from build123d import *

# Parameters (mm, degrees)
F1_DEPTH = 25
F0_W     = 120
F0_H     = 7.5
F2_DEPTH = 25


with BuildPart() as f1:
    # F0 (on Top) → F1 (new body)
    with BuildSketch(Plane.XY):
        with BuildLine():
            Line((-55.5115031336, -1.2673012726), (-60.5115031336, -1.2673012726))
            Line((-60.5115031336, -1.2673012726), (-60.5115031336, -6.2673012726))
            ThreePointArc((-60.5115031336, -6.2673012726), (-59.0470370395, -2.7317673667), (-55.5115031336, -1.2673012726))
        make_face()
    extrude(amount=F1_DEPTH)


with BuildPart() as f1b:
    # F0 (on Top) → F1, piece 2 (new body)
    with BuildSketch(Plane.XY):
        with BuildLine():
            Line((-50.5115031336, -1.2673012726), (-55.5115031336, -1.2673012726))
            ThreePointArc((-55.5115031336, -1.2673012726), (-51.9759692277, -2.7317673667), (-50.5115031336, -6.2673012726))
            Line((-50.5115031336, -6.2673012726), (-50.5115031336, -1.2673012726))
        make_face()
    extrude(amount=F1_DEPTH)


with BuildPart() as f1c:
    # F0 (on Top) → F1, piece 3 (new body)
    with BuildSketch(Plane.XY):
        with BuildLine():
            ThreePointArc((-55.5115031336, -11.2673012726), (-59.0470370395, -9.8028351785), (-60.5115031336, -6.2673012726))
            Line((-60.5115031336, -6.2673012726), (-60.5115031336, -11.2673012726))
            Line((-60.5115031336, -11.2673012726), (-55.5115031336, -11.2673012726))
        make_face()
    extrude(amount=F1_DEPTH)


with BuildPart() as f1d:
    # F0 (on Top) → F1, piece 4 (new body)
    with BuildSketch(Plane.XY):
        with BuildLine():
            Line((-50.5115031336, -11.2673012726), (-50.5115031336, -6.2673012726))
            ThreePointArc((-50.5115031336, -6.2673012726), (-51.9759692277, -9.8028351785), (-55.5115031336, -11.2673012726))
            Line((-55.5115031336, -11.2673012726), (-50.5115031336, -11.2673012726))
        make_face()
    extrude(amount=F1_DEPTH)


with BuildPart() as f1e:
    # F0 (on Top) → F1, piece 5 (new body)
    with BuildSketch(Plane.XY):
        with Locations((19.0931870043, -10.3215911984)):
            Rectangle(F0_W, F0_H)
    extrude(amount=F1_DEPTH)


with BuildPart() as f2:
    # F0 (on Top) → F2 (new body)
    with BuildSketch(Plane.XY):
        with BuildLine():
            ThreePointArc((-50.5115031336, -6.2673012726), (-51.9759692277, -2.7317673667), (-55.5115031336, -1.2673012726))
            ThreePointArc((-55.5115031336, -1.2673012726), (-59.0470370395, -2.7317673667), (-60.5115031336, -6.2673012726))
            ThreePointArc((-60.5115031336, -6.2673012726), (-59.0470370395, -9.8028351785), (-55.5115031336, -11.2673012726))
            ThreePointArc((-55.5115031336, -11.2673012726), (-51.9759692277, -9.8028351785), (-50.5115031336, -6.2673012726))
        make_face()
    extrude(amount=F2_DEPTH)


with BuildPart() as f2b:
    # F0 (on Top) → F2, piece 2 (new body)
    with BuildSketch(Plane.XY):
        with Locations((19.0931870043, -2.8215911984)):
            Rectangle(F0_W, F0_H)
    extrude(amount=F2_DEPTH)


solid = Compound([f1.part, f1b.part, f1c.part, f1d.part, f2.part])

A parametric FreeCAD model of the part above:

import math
import FreeCAD as App
import Part
import Sketcher

V = App.Vector
Q = App.Units.Quantity


def add_polygon(sketch, points):
    """Adds a closed chain of lines whose ends are joined by coincident constraints."""
    first, n = sketch.GeometryCount, len(points)
    for a, b in zip(points, points[1:] + points[:1]):
        sketch.addGeometry(Part.LineSegment(App.Vector(*a, 0), App.Vector(*b, 0)), False)
    for i in range(n):
        sketch.addConstraint(Sketcher.Constraint("Coincident", first + i, 2, first + (i + 1) % n, 1))

doc = App.newDocument("Part")
body = doc.addObject("PartDesign::Body", "Body")

# Sketch on XY plane
sketch1 = body.newObject("Sketcher::SketchObject", "Sketch")
sketch1.AttachmentSupport = (doc.getObject("XY_Plane"), [""])
sketch1.MapMode = "FlatFace"
sketch1.addGeometry([
    Part.LineSegment(V(-55.511503, -1.267301, 0), V(-60.511503, -1.267301, 0)),
    Part.LineSegment(V(-60.511503, -1.267301, 0), V(-60.511503, -6.267301, 0)),
    Part.ArcOfCircle(Part.Circle(V(-55.511503, -6.267301, 0), V(0, 0, 1), 5), math.radians(90), math.radians(180)),
], False)
sketch1.addConstraint([
    Sketcher.Constraint("Coincident", 0, 2, 1, 1),
    Sketcher.Constraint("Tangent", 1, 2, 2, 2),
    Sketcher.Constraint("Tangent", 2, 1, 0, 1),
    Sketcher.Constraint("Horizontal", 0),
    Sketcher.Constraint("Vertical", 1),
    Sketcher.Constraint("Radius", 2, Q("5 mm")),
    Sketcher.Constraint("DistanceY", 2, 3, -1, 1, Q("6.267301 mm")),
    Sketcher.Constraint("DistanceX", 2, 3, -1, 1, Q("55.511503 mm")),
])
pad1 = body.newObject("PartDesign::Pad", "Pad")
pad1.Profile = sketch1
pad1.Length = 25
body2 = doc.addObject("PartDesign::Body", "Body001")

# Sketch on XY plane
sketch2 = body2.newObject("Sketcher::SketchObject", "Sketch001")
sketch2.AttachmentSupport = (doc.getObject("XY_Plane001"), [""])
sketch2.MapMode = "FlatFace"
sketch2.addGeometry([
    Part.LineSegment(V(-50.511503, -1.267301, 0), V(-55.511503, -1.267301, 0)),
    Part.ArcOfCircle(Part.Circle(V(-55.511503, -6.267301, 0), V(0, 0, 1), 5), math.radians(0), math.radians(90)),
    Part.LineSegment(V(-50.511503, -6.267301, 0), V(-50.511503, -1.267301, 0)),
], False)
sketch2.addConstraint([
    Sketcher.Constraint("Tangent", 0, 2, 1, 2),
    Sketcher.Constraint("Tangent", 1, 1, 2, 1),
    Sketcher.Constraint("Coincident", 2, 2, 0, 1),
    Sketcher.Constraint("Horizontal", 0),
    Sketcher.Constraint("Vertical", 2),
    Sketcher.Constraint("Radius", 1, Q("5 mm")),
    Sketcher.Constraint("DistanceY", 1, 3, -1, 1, Q("6.267301 mm")),
    Sketcher.Constraint("DistanceX", 1, 3, -1, 1, Q("55.511503 mm")),
])
pad2 = body2.newObject("PartDesign::Pad", "Pad001")
pad2.Profile = sketch2
pad2.Length = 25
body3 = doc.addObject("PartDesign::Body", "Body002")

# Sketch on XY plane
sketch3 = body3.newObject("Sketcher::SketchObject", "Sketch002")
sketch3.AttachmentSupport = (doc.getObject("XY_Plane002"), [""])
sketch3.MapMode = "FlatFace"
sketch3.addGeometry([
    Part.ArcOfCircle(Part.Circle(V(-55.511503, -6.267301, 0), V(0, 0, 1), 5), math.radians(-180), math.radians(-90)),
    Part.LineSegment(V(-60.511503, -6.267301, 0), V(-60.511503, -11.267301, 0)),
    Part.LineSegment(V(-60.511503, -11.267301, 0), V(-55.511503, -11.267301, 0)),
], False)
sketch3.addConstraint([
    Sketcher.Constraint("Tangent", 0, 1, 1, 1),
    Sketcher.Constraint("Coincident", 1, 2, 2, 1),
    Sketcher.Constraint("Tangent", 2, 2, 0, 2),
    Sketcher.Constraint("Vertical", 1),
    Sketcher.Constraint("Horizontal", 2),
    Sketcher.Constraint("Radius", 0, Q("5 mm")),
    Sketcher.Constraint("DistanceY", 0, 3, -1, 1, Q("6.267301 mm")),
    Sketcher.Constraint("DistanceX", 0, 3, -1, 1, Q("55.511503 mm")),
])
pad3 = body3.newObject("PartDesign::Pad", "Pad002")
pad3.Profile = sketch3
pad3.Length = 25
body4 = doc.addObject("PartDesign::Body", "Body003")

# Sketch on XY plane
sketch4 = body4.newObject("Sketcher::SketchObject", "Sketch003")
sketch4.AttachmentSupport = (doc.getObject("XY_Plane003"), [""])
sketch4.MapMode = "FlatFace"
sketch4.addGeometry([
    Part.LineSegment(V(-50.511503, -11.267301, 0), V(-50.511503, -6.267301, 0)),
    Part.ArcOfCircle(Part.Circle(V(-55.511503, -6.267301, 0), V(0, 0, 1), 5), math.radians(-90), math.radians(0)),
    Part.LineSegment(V(-55.511503, -11.267301, 0), V(-50.511503, -11.267301, 0)),
], False)
sketch4.addConstraint([
    Sketcher.Constraint("Tangent", 0, 2, 1, 2),
    Sketcher.Constraint("Tangent", 1, 1, 2, 1),
    Sketcher.Constraint("Coincident", 2, 2, 0, 1),
    Sketcher.Constraint("Vertical", 0),
    Sketcher.Constraint("Horizontal", 2),
    Sketcher.Constraint("Radius", 1, Q("5 mm")),
    Sketcher.Constraint("DistanceY", 1, 3, -1, 1, Q("6.267301 mm")),
    Sketcher.Constraint("DistanceX", 1, 3, -1, 1, Q("55.511503 mm")),
])
pad4 = body4.newObject("PartDesign::Pad", "Pad003")
pad4.Profile = sketch4
pad4.Length = 25
body5 = doc.addObject("PartDesign::Body", "Body004")

# Sketch on XY plane
sketch5 = body5.newObject("Sketcher::SketchObject", "Sketch004")
sketch5.AttachmentSupport = (doc.getObject("XY_Plane004"), [""])
sketch5.MapMode = "FlatFace"
add_polygon(sketch5, [(-40.906813, -6.571591), (-40.906813, -14.071591), (79.093187, -14.071591), (79.093187, -6.571591)])  # lines 0-3
sketch5.addConstraint([
    Sketcher.Constraint("Vertical", 0),
    Sketcher.Constraint("Horizontal", 1),
    Sketcher.Constraint("Vertical", 2),
    Sketcher.Constraint("Horizontal", 3),
    Sketcher.Constraint("DistanceX", 1, 1, 1, 2, Q("120 mm")),
    Sketcher.Constraint("DistanceY", 0, 2, 0, 1, Q("7.5 mm")),
    Sketcher.Constraint("DistanceY", 0, 2, -1, 1, Q("14.071591 mm")),
    Sketcher.Constraint("DistanceX", 0, 2, -1, 1, Q("40.906813 mm")),
])
pad5 = body5.newObject("PartDesign::Pad", "Pad004")
pad5.Profile = sketch5
pad5.Length = 25
body6 = doc.addObject("PartDesign::Body", "Body005")

# Sketch on XY plane
sketch6 = body6.newObject("Sketcher::SketchObject", "Sketch005")
sketch6.AttachmentSupport = (doc.getObject("XY_Plane005"), [""])
sketch6.MapMode = "FlatFace"
sketch6.addGeometry([
    Part.ArcOfCircle(Part.Circle(V(-55.511503, -6.267301, 0), V(0, 0, 1), 5), math.radians(0), math.radians(90)),
    Part.ArcOfCircle(Part.Circle(V(-55.511503, -6.267301, 0), V(0, 0, 1), 5), math.radians(90), math.radians(180)),
    Part.ArcOfCircle(Part.Circle(V(-55.511503, -6.267301, 0), V(0, 0, 1), 5), math.radians(-180), math.radians(-90)),
    Part.ArcOfCircle(Part.Circle(V(-55.511503, -6.267301, 0), V(0, 0, 1), 5), math.radians(-90), math.radians(0)),
], False)
sketch6.addConstraint([
    Sketcher.Constraint("Tangent", 0, 2, 1, 1),
    Sketcher.Constraint("Tangent", 1, 2, 2, 1),
    Sketcher.Constraint("Tangent", 2, 2, 3, 1),
    Sketcher.Constraint("Tangent", 3, 2, 0, 1),
    Sketcher.Constraint("Equal", 0, 1),
    Sketcher.Constraint("Horizontal", 3, 3, 1, 2),
    Sketcher.Constraint("Horizontal", 1, 2, 3, 2),
    Sketcher.Constraint("Vertical", 3, 3, 0, 2),
    Sketcher.Constraint("Vertical", 0, 2, 2, 2),
    Sketcher.Constraint("Radius", 0, Q("5 mm")),
    Sketcher.Constraint("DistanceY", 0, 3, -1, 1, Q("6.267301 mm")),
    Sketcher.Constraint("DistanceX", 0, 3, -1, 1, Q("55.511503 mm")),
])
pad6 = body6.newObject("PartDesign::Pad", "Pad005")
pad6.Profile = sketch6
pad6.Length = 25
body7 = doc.addObject("PartDesign::Body", "Body006")

# Sketch on XY plane
sketch7 = body7.newObject("Sketcher::SketchObject", "Sketch006")
sketch7.AttachmentSupport = (doc.getObject("XY_Plane006"), [""])
sketch7.MapMode = "FlatFace"
add_polygon(sketch7, [(-40.906813, 0.928409), (-40.906813, -6.571591), (79.093187, -6.571591), (79.093187, 0.928409)])  # lines 0-3
sketch7.addConstraint([
    Sketcher.Constraint("Vertical", 0),
    Sketcher.Constraint("Horizontal", 1),
    Sketcher.Constraint("Vertical", 2),
    Sketcher.Constraint("Horizontal", 3),
    Sketcher.Constraint("DistanceX", 1, 1, 1, 2, Q("120 mm")),
    Sketcher.Constraint("DistanceY", 0, 2, 0, 1, Q("7.5 mm")),
    Sketcher.Constraint("DistanceY", 0, 2, -1, 1, Q("6.571591 mm")),
    Sketcher.Constraint("DistanceX", 0, 2, -1, 1, Q("40.906813 mm")),
])
pad7 = body7.newObject("PartDesign::Pad", "Pad006")
pad7.Profile = sketch7
pad7.Length = 25
body5.Visibility = False
body7.Visibility = False

doc.recompute()
